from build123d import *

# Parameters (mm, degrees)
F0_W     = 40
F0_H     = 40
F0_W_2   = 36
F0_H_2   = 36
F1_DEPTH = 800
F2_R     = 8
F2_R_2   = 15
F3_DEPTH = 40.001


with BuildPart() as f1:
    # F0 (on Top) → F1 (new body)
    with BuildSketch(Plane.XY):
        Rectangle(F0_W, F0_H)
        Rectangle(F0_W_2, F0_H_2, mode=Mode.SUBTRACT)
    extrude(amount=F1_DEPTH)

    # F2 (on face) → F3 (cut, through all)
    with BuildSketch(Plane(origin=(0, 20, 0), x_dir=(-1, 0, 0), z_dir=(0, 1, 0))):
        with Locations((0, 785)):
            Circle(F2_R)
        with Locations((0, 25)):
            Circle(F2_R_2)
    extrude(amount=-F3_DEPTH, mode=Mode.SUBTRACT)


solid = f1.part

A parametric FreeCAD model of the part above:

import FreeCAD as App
import Part
import Sketcher

doc = App.newDocument("Part")
body = doc.addObject("PartDesign::Body", "Body")

# Sketch on XY plane
sketch1 = body.newObject("Sketcher::SketchObject", "Sketch")
sketch1.AttachmentSupport = (doc.getObject("XY_Plane"), [""])
sketch1.MapMode = "FlatFace"
sketch1.addGeometry(Part.LineSegment(App.Vector(-20, 20, 0), App.Vector(-20, -20, 0)), False)
sketch1.addGeometry(Part.LineSegment(App.Vector(-20, -20, 0), App.Vector(20, -20, 0)), False)
sketch1.addGeometry(Part.LineSegment(App.Vector(20, -20, 0), App.Vector(20, 20, 0)), False)
sketch1.addGeometry(Part.LineSegment(App.Vector(20, 20, 0), App.Vector(-20, 20, 0)), False)
sketch1.addGeometry(Part.LineSegment(App.Vector(18, -18, 0), App.Vector(-18, -18, 0)), False)
sketch1.addGeometry(Part.LineSegment(App.Vector(-18, -18, 0), App.Vector(-18, 18, 0)), False)
sketch1.addGeometry(Part.LineSegment(App.Vector(-18, 18, 0), App.Vector(18, 18, 0)), False)
sketch1.addGeometry(Part.LineSegment(App.Vector(18, 18, 0), App.Vector(18, -18, 0)), False)
sketch1.addConstraint(Sketcher.Constraint("Coincident", 0, 2, 1, 1))
sketch1.addConstraint(Sketcher.Constraint("Coincident", 1, 2, 2, 1))
sketch1.addConstraint(Sketcher.Constraint("Coincident", 2, 2, 3, 1))
sketch1.addConstraint(Sketcher.Constraint("Coincident", 3, 2, 0, 1))
sketch1.addConstraint(Sketcher.Constraint("Coincident", 4, 2, 5, 1))
sketch1.addConstraint(Sketcher.Constraint("Coincident", 5, 2, 6, 1))
sketch1.addConstraint(Sketcher.Constraint("Coincident", 6, 2, 7, 1))
sketch1.addConstraint(Sketcher.Constraint("Coincident", 7, 2, 4, 1))
sketch1.addConstraint(Sketcher.Constraint("Vertical", 0))
sketch1.addConstraint(Sketcher.Constraint("Horizontal", 1))
sketch1.addConstraint(Sketcher.Constraint("Vertical", 2))
sketch1.addConstraint(Sketcher.Constraint("Horizontal", 3))
sketch1.addConstraint(Sketcher.Constraint("Horizontal", 4))
sketch1.addConstraint(Sketcher.Constraint("Vertical", 5))
sketch1.addConstraint(Sketcher.Constraint("Horizontal", 6))
sketch1.addConstraint(Sketcher.Constraint("Vertical", 7))
sketch1.addConstraint(Sketcher.Constraint("Symmetric", 0, 2, 2, 2, -1, 1))
sketch1.addConstraint(Sketcher.Constraint("Symmetric", 4, 2, 6, 2, -1, 1))
sketch1.addConstraint(Sketcher.Constraint("Equal", 3, 0))
sketch1.addConstraint(Sketcher.Constraint("Equal", 6, 5))
sketch1.addConstraint(Sketcher.Constraint("DistanceX", 1, 1, 1, 2, 40.0))
sketch1.addConstraint(Sketcher.Constraint("DistanceX", 4, 2, 4, 1, 36.0))
pad1 = body.newObject("PartDesign::Pad", "Pad")
pad1.Profile = sketch1
pad1.Length = 800

# Sketch on XZ plane
sketch2 = body.newObject("Sketcher::SketchObject", "Sketch001")
sketch2.AttachmentSupport = (doc.getObject("XZ_Plane"), [""])
sketch2.MapMode = "FlatFace"
sketch2.AttachmentOffset = App.Placement(App.Vector(0, 0, -20), App.Rotation())
sketch2.addGeometry(Part.Circle(App.Vector(0, 785, 0), App.Vector(0, 0, 1), 8), False)
sketch2.addGeometry(Part.Circle(App.Vector(0, 25, 0), App.Vector(0, 0, 1), 15), False)
sketch2.addConstraint(Sketcher.Constraint("PointOnObject", 0, 3, -2))
sketch2.addConstraint(Sketcher.Constraint("PointOnObject", 1, 3, -2))
sketch2.addConstraint(Sketcher.Constraint("Diameter", 0, 16.0))
sketch2.addConstraint(Sketcher.Constraint("Diameter", 1, 30.0))
sketch2.addConstraint(Sketcher.Constraint("DistanceY", -1, 1, 0, 3, 785.0))
sketch2.addConstraint(Sketcher.Constraint("DistanceY", -1, 1, 1, 3, 25.0))
pocket1 = body.newObject("PartDesign::Pocket", "Pocket")
pocket1.Profile = sketch2
pocket1.Type = "ThroughAll"
pocket1.Reversed = True

doc.recompute()
